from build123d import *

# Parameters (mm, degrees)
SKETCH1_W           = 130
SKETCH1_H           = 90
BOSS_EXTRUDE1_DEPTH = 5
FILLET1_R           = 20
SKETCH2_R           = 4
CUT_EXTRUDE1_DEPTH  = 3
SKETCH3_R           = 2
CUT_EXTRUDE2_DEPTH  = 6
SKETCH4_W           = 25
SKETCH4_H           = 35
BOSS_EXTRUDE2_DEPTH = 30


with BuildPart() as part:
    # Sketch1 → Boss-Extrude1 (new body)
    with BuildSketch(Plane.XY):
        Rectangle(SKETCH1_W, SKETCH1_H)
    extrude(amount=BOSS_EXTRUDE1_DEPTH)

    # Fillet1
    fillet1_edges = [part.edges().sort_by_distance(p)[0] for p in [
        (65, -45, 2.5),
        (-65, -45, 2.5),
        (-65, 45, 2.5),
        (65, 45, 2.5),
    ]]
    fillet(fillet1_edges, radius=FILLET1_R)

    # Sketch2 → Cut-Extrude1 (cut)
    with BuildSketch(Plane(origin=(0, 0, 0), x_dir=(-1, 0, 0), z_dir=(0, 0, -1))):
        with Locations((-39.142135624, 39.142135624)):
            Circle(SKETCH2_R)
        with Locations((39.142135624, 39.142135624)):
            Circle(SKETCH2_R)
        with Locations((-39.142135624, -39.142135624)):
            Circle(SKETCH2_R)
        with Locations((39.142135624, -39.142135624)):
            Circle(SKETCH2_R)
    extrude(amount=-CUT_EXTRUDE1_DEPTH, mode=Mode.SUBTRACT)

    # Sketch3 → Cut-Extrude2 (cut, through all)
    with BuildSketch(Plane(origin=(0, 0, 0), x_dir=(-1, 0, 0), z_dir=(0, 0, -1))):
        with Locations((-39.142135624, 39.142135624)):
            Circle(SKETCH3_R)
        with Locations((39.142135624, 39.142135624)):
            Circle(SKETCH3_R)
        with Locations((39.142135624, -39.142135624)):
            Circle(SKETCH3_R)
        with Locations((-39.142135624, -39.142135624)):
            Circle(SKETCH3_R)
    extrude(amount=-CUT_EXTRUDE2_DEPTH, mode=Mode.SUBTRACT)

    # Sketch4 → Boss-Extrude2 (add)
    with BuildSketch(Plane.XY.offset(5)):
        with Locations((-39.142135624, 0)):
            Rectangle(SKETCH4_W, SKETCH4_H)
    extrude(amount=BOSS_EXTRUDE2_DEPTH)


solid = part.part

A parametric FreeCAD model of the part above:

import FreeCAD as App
import Part
import Sketcher
Q = App.Units.Quantity


def edges_at(feature, points):
    """Names of the edges that pass closest to the given points."""
    edges = feature.Shape.Edges
    near = lambda p: min(range(len(edges)), key=lambda i: edges[i].distToShape(Part.Vertex(*p))[0])
    return sorted({f"Edge{near(p) + 1}" for p in points})


def add_polygon(sketch, points):
    """Adds a closed chain of lines whose ends are joined by coincident constraints."""
    first, n = sketch.GeometryCount, len(points)
    for a, b in zip(points, points[1:] + points[:1]):
        sketch.addGeometry(Part.LineSegment(App.Vector(*a, 0), App.Vector(*b, 0)), False)
    for i in range(n):
        sketch.addConstraint(Sketcher.Constraint("Coincident", first + i, 2, first + (i + 1) % n, 1))

doc = App.newDocument("Part")
body = doc.addObject("PartDesign::Body", "Body")

sketch1 = body.newObject("Sketcher::SketchObject", "Sketch")
sketch1.AttachmentSupport = (doc.getObject("XY_Plane"), [""])
sketch1.MapMode = "FlatFace"
add_polygon(sketch1, [(-65, 45), (-65, -45), (65, -45), (65, 45)])
sketch1.addConstraint(Sketcher.Constraint("Vertical", 0))
sketch1.addConstraint(Sketcher.Constraint("Horizontal", 1))
sketch1.addConstraint(Sketcher.Constraint("Vertical", 2))
sketch1.addConstraint(Sketcher.Constraint("Horizontal", 3))
sketch1.addConstraint(Sketcher.Constraint("Symmetric", 0, 2, 2, 2, -1, 1))
sketch1.addConstraint(Sketcher.Constraint("DistanceX", 1, 1, 1, 2, Q("130 mm")))
sketch1.addConstraint(Sketcher.Constraint("DistanceY", 0, 2, 0, 1, Q("90 mm")))
pad1 = body.newObject("PartDesign::Pad", "Pad")
pad1.Profile = sketch1
pad1.Length = 5
doc.recompute()

fillet = body.newObject("PartDesign::Fillet", "Fillet")
fillet.Base = (pad1, edges_at(pad1, [
    (65, -45, 2.5),
    (-65, -45, 2.5),
    (-65, 45, 2.5),
    (65, 45, 2.5),
]))
fillet.Radius = 20

sketch2 = body.newObject("Sketcher::SketchObject", "Sketch001")
sketch2.AttachmentSupport = (doc.getObject("XY_Plane"), [""])
sketch2.MapMode = "FlatFace"
sketch2.addGeometry(Part.Circle(App.Vector(39.1, 39.1, 0), App.Vector(0, 0, 1), 4), False)
sketch2.addGeometry(Part.Circle(App.Vector(-39.1, 39.1, 0), App.Vector(0, 0, 1), 4), False)
sketch2.addGeometry(Part.Circle(App.Vector(39.1, -39.1, 0), App.Vector(0, 0, 1), 4), False)
sketch2.addGeometry(Part.Circle(App.Vector(-39.1, -39.1, 0), App.Vector(0, 0, 1), 4), False)
sketch2.addConstraint(Sketcher.Constraint("Equal", 0, 1))
sketch2.addConstraint(Sketcher.Constraint("Equal", 1, 2))
sketch2.addConstraint(Sketcher.Constraint("Equal", 2, 3))
sketch2.addConstraint(Sketcher.Constraint("Symmetric", 1, 3, 2, 3, -1, 1))
sketch2.addConstraint(Sketcher.Constraint("Symmetric", 0, 3, 3, 3, -1, 1))
sketch2.addConstraint(Sketcher.Constraint("Symmetric", 0, 3, 1, 3, -2))
sketch2.addConstraint(Sketcher.Constraint("Diameter", 0, Q("8 mm")))
sketch2.addConstraint(Sketcher.Constraint("DistanceX", 1, 3, 0, 3, Q("78.284271 mm")))
sketch2.addConstraint(Sketcher.Constraint("DistanceY", 2, 3, 0, 3, Q("78.284271 mm")))
pocket1 = body.newObject("PartDesign::Pocket", "Pocket")
pocket1.Profile = sketch2
pocket1.Length = 3
pocket1.Reversed = True

sketch3 = body.newObject("Sketcher::SketchObject", "Sketch002")
sketch3.AttachmentSupport = (doc.getObject("XY_Plane"), [""])
sketch3.MapMode = "FlatFace"
sketch3.addGeometry(Part.Circle(App.Vector(39.1, 39.1, 0), App.Vector(0, 0, 1), 2), False)
sketch3.addGeometry(Part.Circle(App.Vector(-39.1, 39.1, 0), App.Vector(0, 0, 1), 2), False)
sketch3.addGeometry(Part.Circle(App.Vector(-39.1, -39.1, 0), App.Vector(0, 0, 1), 2), False)
sketch3.addGeometry(Part.Circle(App.Vector(39.1, -39.1, 0), App.Vector(0, 0, 1), 2), False)
sketch3.addConstraint(Sketcher.Constraint("Equal", 0, 1))
sketch3.addConstraint(Sketcher.Constraint("Equal", 1, 2))
sketch3.addConstraint(Sketcher.Constraint("Equal", 2, 3))
sketch3.addConstraint(Sketcher.Constraint("Symmetric", 0, 3, 2, 3, -1, 1))
sketch3.addConstraint(Sketcher.Constraint("Symmetric", 1, 3, 3, 3, -1, 1))
sketch3.addConstraint(Sketcher.Constraint("Symmetric", 0, 3, 1, 3, -2))
sketch3.addConstraint(Sketcher.Constraint("Diameter", 0, Q("4 mm")))
sketch3.addConstraint(Sketcher.Constraint("DistanceX", 1, 3, 0, 3, Q("78.284271 mm")))
sketch3.addConstraint(Sketcher.Constraint("DistanceY", 2, 3, 1, 3, Q("78.284271 mm")))
pocket2 = body.newObject("PartDesign::Pocket", "Pocket001")
pocket2.Profile = sketch3
pocket2.Type = "ThroughAll"
pocket2.Reversed = True

sketch4 = body.newObject("Sketcher::SketchObject", "Sketch003")
sketch4.AttachmentSupport = (doc.getObject("XY_Plane"), [""])
sketch4.MapMode = "FlatFace"
sketch4.AttachmentOffset = App.Placement(App.Vector(0, 0, 5), App.Rotation())
add_polygon(sketch4, [(-52, 18), (-52, -18), (-27, -18), (-27, 18)])
sketch4.addConstraint(Sketcher.Constraint("Vertical", 0))
sketch4.addConstraint(Sketcher.Constraint("Horizontal", 1))
sketch4.addConstraint(Sketcher.Constraint("Vertical", 2))
sketch4.addConstraint(Sketcher.Constraint("Horizontal", 3))
sketch4.addConstraint(Sketcher.Constraint("DistanceX", 1, 1, 1, 2, Q("25 mm")))
sketch4.addConstraint(Sketcher.Constraint("DistanceY", 0, 2, 0, 1, Q("35 mm")))
sketch4.addConstraint(Sketcher.Constraint("DistanceY", 0, 2, -1, 1, Q("17.5 mm")))
sketch4.addConstraint(Sketcher.Constraint("DistanceX", 0, 2, -1, 1, Q("51.642136 mm")))
pad2 = body.newObject("PartDesign::Pad", "Pad001")
pad2.Profile = sketch4
pad2.Length = 30

doc.recompute()
